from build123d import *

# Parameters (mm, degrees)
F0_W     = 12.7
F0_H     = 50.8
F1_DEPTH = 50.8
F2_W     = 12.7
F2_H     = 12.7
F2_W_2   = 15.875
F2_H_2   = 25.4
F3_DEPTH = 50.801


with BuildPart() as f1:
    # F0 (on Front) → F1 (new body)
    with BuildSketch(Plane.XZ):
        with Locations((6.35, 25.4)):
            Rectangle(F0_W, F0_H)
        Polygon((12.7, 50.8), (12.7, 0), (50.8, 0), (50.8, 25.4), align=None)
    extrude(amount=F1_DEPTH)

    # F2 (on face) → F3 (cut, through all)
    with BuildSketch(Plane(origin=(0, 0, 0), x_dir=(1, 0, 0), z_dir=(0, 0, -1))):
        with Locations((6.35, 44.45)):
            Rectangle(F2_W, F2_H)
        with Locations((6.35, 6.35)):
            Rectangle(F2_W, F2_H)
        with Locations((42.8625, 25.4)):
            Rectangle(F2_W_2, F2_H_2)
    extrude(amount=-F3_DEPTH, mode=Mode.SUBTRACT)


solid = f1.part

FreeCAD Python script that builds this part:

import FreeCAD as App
import Part
import Sketcher
Q = App.Units.Quantity


def add_polygon(sketch, points):
    """Adds a closed chain of lines whose ends are joined by coincident constraints."""
    first, n = sketch.GeometryCount, len(points)
    for a, b in zip(points, points[1:] + points[:1]):
        sketch.addGeometry(Part.LineSegment(App.Vector(*a, 0), App.Vector(*b, 0)), False)
    for i in range(n):
        sketch.addConstraint(Sketcher.Constraint("Coincident", first + i, 2, first + (i + 1) % n, 1))

doc = App.newDocument("Part")
body = doc.addObject("PartDesign::Body", "Body")

# Sketch on XZ plane
sketch1 = doc.addObject("Sketcher::SketchObject", "Sketch")
body.addObject(sketch1)
sketch1.AttachmentSupport = (doc.XZ_Plane, [""])
sketch1.MapMode = "FlatFace"
add_polygon(sketch1, [(0, 51), (0, 0), (51, 0), (51, 25), (13, 51)])  # lines 0-4
sketch1.addConstraint(Sketcher.Constraint("Vertical", 0))
sketch1.addConstraint(Sketcher.Constraint("Horizontal", 1))
sketch1.addConstraint(Sketcher.Constraint("Vertical", 2))
sketch1.addConstraint(Sketcher.Constraint("Horizontal", 4))
sketch1.addConstraint(Sketcher.Constraint("Coincident", 0, 2, -1, 1))
sketch1.addConstraint(Sketcher.Constraint("Equal", 1, 0))
sketch1.addConstraint(Sketcher.Constraint("DistanceX", 1, 1, 1, 2, Q("2 in")))
sketch1.addConstraint(Sketcher.Constraint("DistanceY", 2, 1, 2, 2, Q("1 in")))
sketch1.addConstraint(Sketcher.Constraint("DistanceX", 4, 2, 4, 1, Q("0.5 in")))
pad1 = doc.addObject("PartDesign::Pad", "Pad")
body.addObject(pad1)
pad1.Profile = sketch1
pad1.Length = Q("2 in")

# Sketch on XY plane
sketch2 = doc.addObject("Sketcher::SketchObject", "Sketch001")
body.addObject(sketch2)
sketch2.AttachmentSupport = (doc.XY_Plane, [""])
sketch2.MapMode = "FlatFace"
add_polygon(sketch2, [(0, -51), (0, -38), (13, -38), (13, -51)])  # lines 0-3
add_polygon(sketch2, [(0, -13), (0, 0), (13, 0), (13, -13)])  # lines 4-7
add_polygon(sketch2, [(35, -38), (35, -13), (51, -13), (51, -38)])  # lines 8-11
sketch2.addConstraint(Sketcher.Constraint("Vertical", 0))
sketch2.addConstraint(Sketcher.Constraint("Horizontal", 1))
sketch2.addConstraint(Sketcher.Constraint("Vertical", 2))
sketch2.addConstraint(Sketcher.Constraint("Horizontal", 3))
sketch2.addConstraint(Sketcher.Constraint("Vertical", 4))
sketch2.addConstraint(Sketcher.Constraint("Horizontal", 5))
sketch2.addConstraint(Sketcher.Constraint("Vertical", 6))
sketch2.addConstraint(Sketcher.Constraint("Horizontal", 7))
sketch2.addConstraint(Sketcher.Constraint("Vertical", 8))
sketch2.addConstraint(Sketcher.Constraint("Horizontal", 9))
sketch2.addConstraint(Sketcher.Constraint("Vertical", 10))
sketch2.addConstraint(Sketcher.Constraint("Horizontal", 11))
sketch2.addConstraint(Sketcher.Constraint("Coincident", 4, 2, -1, 1))
sketch2.addConstraint(Sketcher.Constraint("PointOnObject", 0, 2, -2))
sketch2.addConstraint(Sketcher.Constraint("Horizontal", 7, 2, 8, 2))
sketch2.addConstraint(Sketcher.Constraint("Horizontal", 1, 2, 10, 2))
sketch2.addConstraint(Sketcher.Constraint("Vertical", 2, 2, 5, 2))
sketch2.addConstraint(Sketcher.Constraint("Equal", 7, 0))
sketch2.addConstraint(Sketcher.Constraint("Equal", 2, 4))
sketch2.addConstraint(Sketcher.Constraint("DistanceY", 8, 1, 8, 2, Q("1 in")))
sketch2.addConstraint(Sketcher.Constraint("DistanceX", 1, 1, 1, 2, Q("0.5 in")))
sketch2.addConstraint(Sketcher.Constraint("DistanceX", -1, 1, 9, 2, Q("2 in")))
sketch2.addConstraint(Sketcher.Constraint("DistanceX", 9, 1, 9, 2, Q("0.625 in")))
pocket1 = doc.addObject("PartDesign::Pocket", "Pocket")
body.addObject(pocket1)
pocket1.Profile = sketch2
pocket1.Type = "ThroughAll"
pocket1.Reversed = True

doc.recompute()
